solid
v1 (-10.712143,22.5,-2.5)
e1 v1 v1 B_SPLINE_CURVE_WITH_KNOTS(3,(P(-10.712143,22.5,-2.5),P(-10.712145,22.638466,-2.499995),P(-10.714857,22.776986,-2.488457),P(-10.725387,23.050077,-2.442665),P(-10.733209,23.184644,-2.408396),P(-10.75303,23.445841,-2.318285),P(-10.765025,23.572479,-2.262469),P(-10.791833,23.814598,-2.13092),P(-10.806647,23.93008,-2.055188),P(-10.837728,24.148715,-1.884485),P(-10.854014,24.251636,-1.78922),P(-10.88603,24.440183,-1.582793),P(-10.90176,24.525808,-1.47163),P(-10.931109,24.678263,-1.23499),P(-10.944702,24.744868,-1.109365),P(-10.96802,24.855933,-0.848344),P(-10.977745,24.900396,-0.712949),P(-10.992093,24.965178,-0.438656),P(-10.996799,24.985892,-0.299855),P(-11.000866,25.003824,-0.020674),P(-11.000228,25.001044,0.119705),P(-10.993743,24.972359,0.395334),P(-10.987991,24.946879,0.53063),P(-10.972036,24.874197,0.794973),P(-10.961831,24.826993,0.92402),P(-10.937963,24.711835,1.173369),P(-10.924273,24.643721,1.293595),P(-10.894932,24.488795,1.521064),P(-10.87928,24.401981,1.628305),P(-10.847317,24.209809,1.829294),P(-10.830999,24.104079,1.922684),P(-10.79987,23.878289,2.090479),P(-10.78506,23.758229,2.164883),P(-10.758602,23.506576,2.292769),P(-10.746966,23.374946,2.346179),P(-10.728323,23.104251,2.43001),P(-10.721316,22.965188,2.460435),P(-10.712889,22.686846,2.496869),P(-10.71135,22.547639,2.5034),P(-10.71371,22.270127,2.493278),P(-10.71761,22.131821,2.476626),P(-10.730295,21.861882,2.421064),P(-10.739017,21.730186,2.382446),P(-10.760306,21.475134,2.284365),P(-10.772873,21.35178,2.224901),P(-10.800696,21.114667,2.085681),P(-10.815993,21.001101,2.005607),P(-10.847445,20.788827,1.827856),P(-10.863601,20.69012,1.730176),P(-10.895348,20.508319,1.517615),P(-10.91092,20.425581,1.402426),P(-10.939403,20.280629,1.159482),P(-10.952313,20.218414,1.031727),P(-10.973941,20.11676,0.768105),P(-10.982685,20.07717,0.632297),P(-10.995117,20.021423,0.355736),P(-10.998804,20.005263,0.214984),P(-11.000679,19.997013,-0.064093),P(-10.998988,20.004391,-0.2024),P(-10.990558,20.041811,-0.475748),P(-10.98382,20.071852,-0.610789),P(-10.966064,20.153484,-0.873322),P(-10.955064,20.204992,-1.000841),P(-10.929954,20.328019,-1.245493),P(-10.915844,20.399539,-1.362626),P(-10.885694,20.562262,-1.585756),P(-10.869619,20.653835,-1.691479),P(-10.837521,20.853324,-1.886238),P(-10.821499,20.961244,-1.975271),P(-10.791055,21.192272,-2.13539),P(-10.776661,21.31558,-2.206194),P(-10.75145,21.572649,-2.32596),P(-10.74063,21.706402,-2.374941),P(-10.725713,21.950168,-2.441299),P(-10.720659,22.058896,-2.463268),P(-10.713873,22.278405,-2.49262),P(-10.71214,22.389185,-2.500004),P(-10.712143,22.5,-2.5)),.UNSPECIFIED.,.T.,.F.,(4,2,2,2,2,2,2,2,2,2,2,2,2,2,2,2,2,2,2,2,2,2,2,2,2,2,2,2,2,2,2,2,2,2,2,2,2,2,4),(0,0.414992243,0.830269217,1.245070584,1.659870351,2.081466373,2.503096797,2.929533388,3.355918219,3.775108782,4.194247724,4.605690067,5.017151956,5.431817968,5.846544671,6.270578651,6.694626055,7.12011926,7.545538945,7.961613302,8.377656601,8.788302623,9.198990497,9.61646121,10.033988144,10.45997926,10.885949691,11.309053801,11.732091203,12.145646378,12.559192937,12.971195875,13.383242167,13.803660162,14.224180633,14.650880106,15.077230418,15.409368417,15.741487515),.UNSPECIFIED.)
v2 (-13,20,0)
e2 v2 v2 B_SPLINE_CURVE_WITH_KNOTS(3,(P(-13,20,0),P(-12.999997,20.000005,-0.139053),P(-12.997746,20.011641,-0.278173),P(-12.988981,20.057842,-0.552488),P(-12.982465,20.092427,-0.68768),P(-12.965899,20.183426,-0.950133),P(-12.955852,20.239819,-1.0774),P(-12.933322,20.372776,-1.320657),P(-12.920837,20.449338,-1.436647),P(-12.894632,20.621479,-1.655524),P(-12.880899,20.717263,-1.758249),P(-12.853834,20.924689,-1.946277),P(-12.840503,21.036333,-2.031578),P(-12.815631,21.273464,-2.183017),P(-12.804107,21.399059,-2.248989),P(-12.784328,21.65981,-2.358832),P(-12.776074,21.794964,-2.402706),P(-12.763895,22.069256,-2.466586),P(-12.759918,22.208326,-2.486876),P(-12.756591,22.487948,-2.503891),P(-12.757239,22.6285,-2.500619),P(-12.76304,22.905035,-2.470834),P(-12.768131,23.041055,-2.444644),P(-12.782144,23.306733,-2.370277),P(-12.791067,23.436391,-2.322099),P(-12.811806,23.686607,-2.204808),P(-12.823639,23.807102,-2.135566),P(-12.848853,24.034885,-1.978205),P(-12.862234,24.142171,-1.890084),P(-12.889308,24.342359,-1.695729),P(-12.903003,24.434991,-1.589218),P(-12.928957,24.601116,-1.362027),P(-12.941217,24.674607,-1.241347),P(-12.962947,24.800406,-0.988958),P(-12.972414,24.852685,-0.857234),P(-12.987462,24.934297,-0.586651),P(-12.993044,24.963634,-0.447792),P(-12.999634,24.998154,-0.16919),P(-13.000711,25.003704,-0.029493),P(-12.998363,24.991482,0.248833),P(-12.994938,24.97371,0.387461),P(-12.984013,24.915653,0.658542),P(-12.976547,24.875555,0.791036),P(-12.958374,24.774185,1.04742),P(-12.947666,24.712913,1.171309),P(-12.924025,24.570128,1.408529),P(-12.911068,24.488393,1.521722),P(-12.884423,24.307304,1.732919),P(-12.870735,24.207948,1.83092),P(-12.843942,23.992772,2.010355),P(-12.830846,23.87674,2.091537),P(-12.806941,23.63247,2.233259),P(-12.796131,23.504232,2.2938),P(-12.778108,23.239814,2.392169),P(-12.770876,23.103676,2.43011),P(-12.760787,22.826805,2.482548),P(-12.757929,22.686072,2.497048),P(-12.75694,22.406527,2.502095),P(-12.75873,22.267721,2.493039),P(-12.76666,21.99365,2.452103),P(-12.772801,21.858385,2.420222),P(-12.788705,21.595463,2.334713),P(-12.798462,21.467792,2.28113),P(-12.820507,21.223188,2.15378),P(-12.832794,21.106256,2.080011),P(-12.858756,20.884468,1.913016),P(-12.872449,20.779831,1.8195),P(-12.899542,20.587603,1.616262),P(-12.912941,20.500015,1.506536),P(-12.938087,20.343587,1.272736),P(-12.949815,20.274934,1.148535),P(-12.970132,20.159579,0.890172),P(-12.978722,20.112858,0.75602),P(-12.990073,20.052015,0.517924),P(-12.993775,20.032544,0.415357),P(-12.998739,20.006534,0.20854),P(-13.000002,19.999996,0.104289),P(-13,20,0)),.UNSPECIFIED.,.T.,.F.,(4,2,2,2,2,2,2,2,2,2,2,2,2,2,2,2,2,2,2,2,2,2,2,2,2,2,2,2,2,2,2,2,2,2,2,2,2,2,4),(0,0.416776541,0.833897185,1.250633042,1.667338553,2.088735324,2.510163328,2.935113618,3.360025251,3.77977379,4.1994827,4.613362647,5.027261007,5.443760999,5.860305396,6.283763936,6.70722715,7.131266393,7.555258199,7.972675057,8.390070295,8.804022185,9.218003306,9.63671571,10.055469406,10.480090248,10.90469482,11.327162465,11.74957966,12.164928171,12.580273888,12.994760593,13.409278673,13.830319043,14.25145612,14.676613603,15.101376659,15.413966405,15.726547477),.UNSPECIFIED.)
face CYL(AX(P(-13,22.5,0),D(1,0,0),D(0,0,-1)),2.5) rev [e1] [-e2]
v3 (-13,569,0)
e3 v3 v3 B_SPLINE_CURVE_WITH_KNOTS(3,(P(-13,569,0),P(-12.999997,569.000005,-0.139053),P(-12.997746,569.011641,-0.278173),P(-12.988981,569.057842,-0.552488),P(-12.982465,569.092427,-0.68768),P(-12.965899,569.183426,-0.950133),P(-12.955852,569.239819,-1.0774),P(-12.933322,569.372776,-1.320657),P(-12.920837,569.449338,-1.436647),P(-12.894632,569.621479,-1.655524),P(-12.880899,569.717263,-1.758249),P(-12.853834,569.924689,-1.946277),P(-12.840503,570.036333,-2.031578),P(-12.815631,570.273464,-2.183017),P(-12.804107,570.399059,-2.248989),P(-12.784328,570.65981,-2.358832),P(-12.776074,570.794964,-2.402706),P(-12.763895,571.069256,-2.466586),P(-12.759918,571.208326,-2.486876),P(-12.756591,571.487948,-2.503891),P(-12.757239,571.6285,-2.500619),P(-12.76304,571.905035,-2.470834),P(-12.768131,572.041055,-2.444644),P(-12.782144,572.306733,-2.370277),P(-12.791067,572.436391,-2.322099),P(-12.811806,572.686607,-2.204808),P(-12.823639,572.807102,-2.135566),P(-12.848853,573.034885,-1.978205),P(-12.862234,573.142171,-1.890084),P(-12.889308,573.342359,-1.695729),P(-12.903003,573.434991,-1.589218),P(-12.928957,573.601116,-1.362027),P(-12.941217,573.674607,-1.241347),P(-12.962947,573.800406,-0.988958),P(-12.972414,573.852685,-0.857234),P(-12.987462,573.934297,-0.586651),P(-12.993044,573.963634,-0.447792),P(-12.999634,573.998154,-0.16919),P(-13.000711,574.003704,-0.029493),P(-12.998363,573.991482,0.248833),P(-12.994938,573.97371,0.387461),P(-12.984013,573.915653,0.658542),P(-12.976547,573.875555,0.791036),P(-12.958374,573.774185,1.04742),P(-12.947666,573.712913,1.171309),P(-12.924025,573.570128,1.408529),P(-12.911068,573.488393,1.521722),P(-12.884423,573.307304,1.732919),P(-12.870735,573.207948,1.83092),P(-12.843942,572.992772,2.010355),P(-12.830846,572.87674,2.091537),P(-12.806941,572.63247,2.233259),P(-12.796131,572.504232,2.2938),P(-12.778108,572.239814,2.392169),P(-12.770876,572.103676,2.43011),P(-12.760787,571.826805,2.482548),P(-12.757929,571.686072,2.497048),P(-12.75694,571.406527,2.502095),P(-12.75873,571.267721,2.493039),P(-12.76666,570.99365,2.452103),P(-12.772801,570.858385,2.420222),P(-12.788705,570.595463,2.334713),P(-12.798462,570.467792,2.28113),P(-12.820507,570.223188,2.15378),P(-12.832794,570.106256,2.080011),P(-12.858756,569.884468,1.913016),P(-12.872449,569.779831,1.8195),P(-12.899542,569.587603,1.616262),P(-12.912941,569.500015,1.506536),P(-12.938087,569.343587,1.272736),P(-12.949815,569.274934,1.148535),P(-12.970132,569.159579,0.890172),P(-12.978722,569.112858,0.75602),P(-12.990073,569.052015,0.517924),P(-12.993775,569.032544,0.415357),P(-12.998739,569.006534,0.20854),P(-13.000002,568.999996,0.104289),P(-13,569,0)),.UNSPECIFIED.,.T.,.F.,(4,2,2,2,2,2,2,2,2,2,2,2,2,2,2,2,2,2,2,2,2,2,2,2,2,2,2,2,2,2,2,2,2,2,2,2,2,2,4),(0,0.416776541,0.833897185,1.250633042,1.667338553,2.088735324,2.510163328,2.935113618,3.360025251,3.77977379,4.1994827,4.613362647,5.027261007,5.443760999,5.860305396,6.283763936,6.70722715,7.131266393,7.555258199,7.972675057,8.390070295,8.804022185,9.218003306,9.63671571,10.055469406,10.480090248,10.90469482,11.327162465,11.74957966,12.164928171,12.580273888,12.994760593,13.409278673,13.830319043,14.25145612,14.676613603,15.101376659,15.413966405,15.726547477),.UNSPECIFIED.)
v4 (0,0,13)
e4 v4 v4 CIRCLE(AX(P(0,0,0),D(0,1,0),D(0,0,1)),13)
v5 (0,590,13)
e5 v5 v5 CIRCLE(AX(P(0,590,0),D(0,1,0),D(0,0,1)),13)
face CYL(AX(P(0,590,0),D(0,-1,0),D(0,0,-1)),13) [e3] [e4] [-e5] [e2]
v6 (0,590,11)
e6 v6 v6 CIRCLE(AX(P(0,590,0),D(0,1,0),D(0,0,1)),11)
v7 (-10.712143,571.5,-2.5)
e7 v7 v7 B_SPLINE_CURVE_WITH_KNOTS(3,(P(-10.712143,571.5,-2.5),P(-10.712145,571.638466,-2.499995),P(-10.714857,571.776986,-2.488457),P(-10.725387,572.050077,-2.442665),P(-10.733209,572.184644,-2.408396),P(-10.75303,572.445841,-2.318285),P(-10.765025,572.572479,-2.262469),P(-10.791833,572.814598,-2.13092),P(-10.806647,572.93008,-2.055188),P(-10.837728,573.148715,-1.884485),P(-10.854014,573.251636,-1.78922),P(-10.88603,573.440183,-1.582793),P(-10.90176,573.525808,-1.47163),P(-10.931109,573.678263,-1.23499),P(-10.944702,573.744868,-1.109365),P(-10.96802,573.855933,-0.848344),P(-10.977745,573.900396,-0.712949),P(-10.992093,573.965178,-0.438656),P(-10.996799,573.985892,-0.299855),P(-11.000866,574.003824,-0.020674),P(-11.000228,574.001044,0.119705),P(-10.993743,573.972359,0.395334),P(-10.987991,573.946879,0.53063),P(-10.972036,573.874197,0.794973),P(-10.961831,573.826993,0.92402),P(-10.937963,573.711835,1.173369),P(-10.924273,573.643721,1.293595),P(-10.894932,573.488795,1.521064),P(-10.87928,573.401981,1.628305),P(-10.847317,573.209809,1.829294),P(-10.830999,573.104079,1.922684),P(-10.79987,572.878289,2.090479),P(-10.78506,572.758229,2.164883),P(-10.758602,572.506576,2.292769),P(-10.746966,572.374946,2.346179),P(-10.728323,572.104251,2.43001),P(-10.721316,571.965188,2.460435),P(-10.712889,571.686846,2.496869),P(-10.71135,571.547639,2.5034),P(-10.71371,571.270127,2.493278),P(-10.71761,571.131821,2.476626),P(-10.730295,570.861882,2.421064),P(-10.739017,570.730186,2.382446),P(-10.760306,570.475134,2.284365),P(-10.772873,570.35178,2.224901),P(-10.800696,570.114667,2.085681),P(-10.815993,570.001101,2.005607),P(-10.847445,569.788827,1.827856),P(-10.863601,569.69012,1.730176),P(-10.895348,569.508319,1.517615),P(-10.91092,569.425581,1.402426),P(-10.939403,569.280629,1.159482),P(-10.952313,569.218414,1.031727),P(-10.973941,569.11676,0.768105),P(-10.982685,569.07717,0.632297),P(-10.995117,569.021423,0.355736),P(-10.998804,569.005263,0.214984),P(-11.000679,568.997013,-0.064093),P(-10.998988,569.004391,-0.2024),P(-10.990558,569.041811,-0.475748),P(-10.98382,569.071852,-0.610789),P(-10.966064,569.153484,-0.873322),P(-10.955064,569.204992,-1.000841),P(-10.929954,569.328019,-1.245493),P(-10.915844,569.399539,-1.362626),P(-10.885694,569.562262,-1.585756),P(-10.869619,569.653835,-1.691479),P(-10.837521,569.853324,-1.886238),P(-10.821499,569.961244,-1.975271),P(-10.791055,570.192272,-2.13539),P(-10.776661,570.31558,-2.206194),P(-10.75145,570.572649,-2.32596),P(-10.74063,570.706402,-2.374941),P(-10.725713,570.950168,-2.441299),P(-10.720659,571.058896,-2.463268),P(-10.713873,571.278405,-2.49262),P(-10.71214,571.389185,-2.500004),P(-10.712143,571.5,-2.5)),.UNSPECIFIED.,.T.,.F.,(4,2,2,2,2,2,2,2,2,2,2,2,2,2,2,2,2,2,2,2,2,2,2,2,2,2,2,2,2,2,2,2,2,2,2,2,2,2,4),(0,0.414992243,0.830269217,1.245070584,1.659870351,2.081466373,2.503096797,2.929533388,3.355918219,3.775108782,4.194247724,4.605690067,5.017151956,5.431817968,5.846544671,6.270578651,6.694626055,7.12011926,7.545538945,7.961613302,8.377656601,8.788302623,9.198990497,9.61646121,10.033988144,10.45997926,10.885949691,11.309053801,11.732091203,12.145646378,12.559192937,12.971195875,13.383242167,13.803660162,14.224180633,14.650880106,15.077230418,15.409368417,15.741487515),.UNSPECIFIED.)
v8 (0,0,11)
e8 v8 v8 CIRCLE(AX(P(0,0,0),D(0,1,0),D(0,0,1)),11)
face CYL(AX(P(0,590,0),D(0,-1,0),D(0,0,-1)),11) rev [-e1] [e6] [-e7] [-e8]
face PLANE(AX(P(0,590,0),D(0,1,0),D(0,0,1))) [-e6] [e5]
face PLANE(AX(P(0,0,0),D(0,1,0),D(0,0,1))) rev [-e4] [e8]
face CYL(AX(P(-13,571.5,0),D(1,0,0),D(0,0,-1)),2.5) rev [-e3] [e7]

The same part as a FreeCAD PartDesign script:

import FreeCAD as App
import Part
import Sketcher

doc = App.newDocument("Part")
body = doc.addObject("PartDesign::Body", "Body")

# Sketch on XZ plane
sketch1 = doc.addObject("Sketcher::SketchObject", "Sketch")
body.addObject(sketch1)
sketch1.AttachmentSupport = (doc.XZ_Plane, [""])
sketch1.MapMode = "FlatFace"
sketch1.addGeometry([
    Part.Circle(App.Vector(0, 0, 0), App.Vector(0, 0, 1), 13),
    Part.Circle(App.Vector(0, 0, 0), App.Vector(0, 0, 1), 11),
], False)
sketch1.addConstraint([
    Sketcher.Constraint("Coincident", 0, 3, -1, 1),
    Sketcher.Constraint("Coincident", 1, 3, -1, 1),
    Sketcher.Constraint("Diameter", 0, 26.0),
    Sketcher.Constraint("Diameter", 1, 22.0),
])
pad1 = doc.addObject("PartDesign::Pad", "Pad")
body.addObject(pad1)
pad1.Profile = sketch1
pad1.Length = 590
pad1.Reversed = True

# Sketch on YZ plane
sketch2 = doc.addObject("Sketcher::SketchObject", "Sketch001")
body.addObject(sketch2)
sketch2.AttachmentSupport = (doc.YZ_Plane, [""])
sketch2.MapMode = "FlatFace"
sketch2.addGeometry([
    Part.Circle(App.Vector(22.5, 0, 0), App.Vector(0, 0, 1), 2.5),
    Part.Circle(App.Vector(571.5, 0, 0), App.Vector(0, 0, 1), 2.5),
], False)
sketch2.addConstraint([
    Sketcher.Constraint("Equal", 0, 1),
    Sketcher.Constraint("PointOnObject", 0, 3, -1),
    Sketcher.Constraint("PointOnObject", 1, 3, -1),
    Sketcher.Constraint("Diameter", 0, 5.0),
    Sketcher.Constraint("DistanceX", 0, 3, 1, 3, 549.0),
    Sketcher.Constraint("DistanceX", -1, 1, 0, 3, 22.5),
])
pocket1 = doc.addObject("PartDesign::Pocket", "Pocket")
body.addObject(pocket1)
pocket1.Profile = sketch2
pocket1.Type = "ThroughAll"

doc.recompute()
